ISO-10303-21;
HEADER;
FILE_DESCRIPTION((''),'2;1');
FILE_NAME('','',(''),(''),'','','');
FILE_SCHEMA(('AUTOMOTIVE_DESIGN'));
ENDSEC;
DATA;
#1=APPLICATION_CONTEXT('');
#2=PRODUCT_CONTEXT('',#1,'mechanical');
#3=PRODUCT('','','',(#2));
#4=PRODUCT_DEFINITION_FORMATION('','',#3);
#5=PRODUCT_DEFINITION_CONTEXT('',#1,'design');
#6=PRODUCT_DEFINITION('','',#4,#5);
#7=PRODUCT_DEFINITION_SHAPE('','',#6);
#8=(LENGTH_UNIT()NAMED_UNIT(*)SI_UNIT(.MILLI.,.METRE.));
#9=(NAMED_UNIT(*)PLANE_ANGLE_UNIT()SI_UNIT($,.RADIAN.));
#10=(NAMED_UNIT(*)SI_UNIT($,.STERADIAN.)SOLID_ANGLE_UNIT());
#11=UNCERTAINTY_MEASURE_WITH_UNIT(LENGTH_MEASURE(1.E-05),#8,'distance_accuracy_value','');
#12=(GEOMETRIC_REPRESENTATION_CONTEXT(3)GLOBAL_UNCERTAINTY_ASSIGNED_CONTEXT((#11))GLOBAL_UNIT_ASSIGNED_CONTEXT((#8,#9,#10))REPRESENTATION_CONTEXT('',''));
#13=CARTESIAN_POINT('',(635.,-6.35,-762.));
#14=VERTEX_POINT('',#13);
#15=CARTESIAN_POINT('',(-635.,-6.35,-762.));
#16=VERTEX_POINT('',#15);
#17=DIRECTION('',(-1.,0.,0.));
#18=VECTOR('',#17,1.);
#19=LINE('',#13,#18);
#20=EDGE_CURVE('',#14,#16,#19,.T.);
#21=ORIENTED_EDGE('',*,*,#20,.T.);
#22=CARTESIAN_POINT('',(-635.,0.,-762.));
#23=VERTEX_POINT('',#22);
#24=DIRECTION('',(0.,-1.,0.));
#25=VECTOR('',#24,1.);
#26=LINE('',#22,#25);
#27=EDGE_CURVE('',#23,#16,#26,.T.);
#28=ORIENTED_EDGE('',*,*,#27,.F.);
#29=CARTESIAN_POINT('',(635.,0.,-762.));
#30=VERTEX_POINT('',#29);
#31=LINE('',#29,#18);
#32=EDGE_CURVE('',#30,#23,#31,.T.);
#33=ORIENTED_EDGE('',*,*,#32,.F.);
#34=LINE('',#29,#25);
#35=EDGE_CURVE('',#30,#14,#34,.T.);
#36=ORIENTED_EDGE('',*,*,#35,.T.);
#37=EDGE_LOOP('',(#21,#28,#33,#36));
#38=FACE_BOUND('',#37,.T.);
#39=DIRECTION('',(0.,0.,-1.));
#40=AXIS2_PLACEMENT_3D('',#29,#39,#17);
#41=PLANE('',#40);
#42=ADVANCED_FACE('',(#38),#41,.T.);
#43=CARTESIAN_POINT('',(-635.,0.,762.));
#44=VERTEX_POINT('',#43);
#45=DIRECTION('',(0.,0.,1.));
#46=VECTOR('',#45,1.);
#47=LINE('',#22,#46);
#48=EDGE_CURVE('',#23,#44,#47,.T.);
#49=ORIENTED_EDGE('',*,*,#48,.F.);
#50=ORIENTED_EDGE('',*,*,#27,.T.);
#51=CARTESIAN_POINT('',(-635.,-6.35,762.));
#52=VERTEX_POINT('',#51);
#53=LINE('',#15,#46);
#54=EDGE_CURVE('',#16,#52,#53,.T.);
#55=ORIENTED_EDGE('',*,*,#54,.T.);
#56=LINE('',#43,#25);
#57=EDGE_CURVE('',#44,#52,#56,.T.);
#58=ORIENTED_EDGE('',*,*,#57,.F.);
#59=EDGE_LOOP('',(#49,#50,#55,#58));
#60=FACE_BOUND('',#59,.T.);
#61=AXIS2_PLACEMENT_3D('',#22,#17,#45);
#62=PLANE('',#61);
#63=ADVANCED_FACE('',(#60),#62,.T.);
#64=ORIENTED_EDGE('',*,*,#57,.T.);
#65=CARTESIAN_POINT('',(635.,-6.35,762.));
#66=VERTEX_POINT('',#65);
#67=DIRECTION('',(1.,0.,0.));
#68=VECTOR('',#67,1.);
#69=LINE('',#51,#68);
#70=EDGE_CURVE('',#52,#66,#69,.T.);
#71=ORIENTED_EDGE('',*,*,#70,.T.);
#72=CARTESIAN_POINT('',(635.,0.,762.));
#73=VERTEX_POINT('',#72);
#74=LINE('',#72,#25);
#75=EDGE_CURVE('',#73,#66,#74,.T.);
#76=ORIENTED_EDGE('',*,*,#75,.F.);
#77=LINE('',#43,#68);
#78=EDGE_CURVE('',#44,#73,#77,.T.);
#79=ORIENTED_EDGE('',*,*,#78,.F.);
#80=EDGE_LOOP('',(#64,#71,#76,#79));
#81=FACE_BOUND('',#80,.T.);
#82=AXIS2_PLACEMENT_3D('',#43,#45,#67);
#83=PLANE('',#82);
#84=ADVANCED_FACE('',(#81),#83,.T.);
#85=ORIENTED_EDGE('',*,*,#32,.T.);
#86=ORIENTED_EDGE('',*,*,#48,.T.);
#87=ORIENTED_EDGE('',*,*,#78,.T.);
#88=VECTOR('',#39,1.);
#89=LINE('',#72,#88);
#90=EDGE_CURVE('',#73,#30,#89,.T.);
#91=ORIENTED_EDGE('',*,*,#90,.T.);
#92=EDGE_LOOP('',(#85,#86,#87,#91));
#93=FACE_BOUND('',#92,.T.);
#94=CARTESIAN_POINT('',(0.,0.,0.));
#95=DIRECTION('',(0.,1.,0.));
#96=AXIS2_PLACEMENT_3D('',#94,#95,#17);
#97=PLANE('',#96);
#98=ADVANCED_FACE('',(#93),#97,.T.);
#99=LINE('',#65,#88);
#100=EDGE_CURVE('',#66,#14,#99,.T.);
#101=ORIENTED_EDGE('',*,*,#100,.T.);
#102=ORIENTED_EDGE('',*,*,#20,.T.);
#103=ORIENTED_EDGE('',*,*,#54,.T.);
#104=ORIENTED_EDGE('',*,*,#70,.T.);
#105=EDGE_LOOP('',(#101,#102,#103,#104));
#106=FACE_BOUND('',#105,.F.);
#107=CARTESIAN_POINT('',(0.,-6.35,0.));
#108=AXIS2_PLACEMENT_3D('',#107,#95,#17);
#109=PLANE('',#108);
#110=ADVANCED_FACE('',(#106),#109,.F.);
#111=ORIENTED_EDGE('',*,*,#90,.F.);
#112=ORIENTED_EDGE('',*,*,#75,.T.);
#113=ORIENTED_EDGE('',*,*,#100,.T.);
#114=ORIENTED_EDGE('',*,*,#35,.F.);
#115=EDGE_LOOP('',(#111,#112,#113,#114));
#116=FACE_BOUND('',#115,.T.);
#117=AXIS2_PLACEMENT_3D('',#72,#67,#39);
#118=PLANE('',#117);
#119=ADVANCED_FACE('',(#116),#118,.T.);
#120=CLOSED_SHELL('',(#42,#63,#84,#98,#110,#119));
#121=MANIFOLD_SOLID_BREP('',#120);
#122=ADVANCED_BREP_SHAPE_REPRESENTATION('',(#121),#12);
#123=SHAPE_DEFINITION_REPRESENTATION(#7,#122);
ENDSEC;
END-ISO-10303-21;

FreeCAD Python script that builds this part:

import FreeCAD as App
import Part
import Sketcher

V = App.Vector
Q = App.Units.Quantity

doc = App.newDocument("Part")
params = doc.addObject("Spreadsheet::Sheet", "Params")
for row, (alias, value) in enumerate([
    ("sketch1_width", "50 in"),
    ("sketch1_height", "60 in"),
    ("pad1_length", "0.25 in"),
], start=1):
    params.set(f"A{row}", alias)
    params.set(f"B{row}", "=" + value)
    params.setAlias(f"B{row}", alias)

body = doc.addObject("PartDesign::Body", "Body")

sketch1 = body.newObject("Sketcher::SketchObject", "Sketch")
sketch1.AttachmentSupport = (doc.getObject("XZ_Plane"), [""])
sketch1.MapMode = "FlatFace"
sketch1.addGeometry([
    Part.LineSegment(V(-635, -762, 0), V(-635, 762, 0)),
    Part.LineSegment(V(-635, 762, 0), V(635, 762, 0)),
    Part.LineSegment(V(635, 762, 0), V(635, -762, 0)),
    Part.LineSegment(V(635, -762, 0), V(-635, -762, 0)),
], False)
sketch1.addConstraint([
    Sketcher.Constraint("Coincident", 0, 2, 1, 1),
    Sketcher.Constraint("Coincident", 1, 2, 2, 1),
    Sketcher.Constraint("Coincident", 2, 2, 3, 1),
    Sketcher.Constraint("Coincident", 3, 2, 0, 1),
    Sketcher.Constraint("Vertical", 0),
    Sketcher.Constraint("Horizontal", 1),
    Sketcher.Constraint("Vertical", 2),
    Sketcher.Constraint("Horizontal", 3),
    Sketcher.Constraint("Symmetric", 0, 2, 2, 2, -1, 1),
    Sketcher.Constraint("DistanceX", 1, 1, 1, 2, Q("50 in")),
    Sketcher.Constraint("DistanceY", 0, 1, 0, 2, Q("60 in")),
])
sketch1.setExpression("Constraints[9]", "Params.sketch1_width")
sketch1.setExpression("Constraints[10]", "Params.sketch1_height")
pad1 = body.newObject("PartDesign::Pad", "Pad")
pad1.Profile = sketch1
pad1.setExpression("Length", "Params.pad1_length")

doc.recompute()
